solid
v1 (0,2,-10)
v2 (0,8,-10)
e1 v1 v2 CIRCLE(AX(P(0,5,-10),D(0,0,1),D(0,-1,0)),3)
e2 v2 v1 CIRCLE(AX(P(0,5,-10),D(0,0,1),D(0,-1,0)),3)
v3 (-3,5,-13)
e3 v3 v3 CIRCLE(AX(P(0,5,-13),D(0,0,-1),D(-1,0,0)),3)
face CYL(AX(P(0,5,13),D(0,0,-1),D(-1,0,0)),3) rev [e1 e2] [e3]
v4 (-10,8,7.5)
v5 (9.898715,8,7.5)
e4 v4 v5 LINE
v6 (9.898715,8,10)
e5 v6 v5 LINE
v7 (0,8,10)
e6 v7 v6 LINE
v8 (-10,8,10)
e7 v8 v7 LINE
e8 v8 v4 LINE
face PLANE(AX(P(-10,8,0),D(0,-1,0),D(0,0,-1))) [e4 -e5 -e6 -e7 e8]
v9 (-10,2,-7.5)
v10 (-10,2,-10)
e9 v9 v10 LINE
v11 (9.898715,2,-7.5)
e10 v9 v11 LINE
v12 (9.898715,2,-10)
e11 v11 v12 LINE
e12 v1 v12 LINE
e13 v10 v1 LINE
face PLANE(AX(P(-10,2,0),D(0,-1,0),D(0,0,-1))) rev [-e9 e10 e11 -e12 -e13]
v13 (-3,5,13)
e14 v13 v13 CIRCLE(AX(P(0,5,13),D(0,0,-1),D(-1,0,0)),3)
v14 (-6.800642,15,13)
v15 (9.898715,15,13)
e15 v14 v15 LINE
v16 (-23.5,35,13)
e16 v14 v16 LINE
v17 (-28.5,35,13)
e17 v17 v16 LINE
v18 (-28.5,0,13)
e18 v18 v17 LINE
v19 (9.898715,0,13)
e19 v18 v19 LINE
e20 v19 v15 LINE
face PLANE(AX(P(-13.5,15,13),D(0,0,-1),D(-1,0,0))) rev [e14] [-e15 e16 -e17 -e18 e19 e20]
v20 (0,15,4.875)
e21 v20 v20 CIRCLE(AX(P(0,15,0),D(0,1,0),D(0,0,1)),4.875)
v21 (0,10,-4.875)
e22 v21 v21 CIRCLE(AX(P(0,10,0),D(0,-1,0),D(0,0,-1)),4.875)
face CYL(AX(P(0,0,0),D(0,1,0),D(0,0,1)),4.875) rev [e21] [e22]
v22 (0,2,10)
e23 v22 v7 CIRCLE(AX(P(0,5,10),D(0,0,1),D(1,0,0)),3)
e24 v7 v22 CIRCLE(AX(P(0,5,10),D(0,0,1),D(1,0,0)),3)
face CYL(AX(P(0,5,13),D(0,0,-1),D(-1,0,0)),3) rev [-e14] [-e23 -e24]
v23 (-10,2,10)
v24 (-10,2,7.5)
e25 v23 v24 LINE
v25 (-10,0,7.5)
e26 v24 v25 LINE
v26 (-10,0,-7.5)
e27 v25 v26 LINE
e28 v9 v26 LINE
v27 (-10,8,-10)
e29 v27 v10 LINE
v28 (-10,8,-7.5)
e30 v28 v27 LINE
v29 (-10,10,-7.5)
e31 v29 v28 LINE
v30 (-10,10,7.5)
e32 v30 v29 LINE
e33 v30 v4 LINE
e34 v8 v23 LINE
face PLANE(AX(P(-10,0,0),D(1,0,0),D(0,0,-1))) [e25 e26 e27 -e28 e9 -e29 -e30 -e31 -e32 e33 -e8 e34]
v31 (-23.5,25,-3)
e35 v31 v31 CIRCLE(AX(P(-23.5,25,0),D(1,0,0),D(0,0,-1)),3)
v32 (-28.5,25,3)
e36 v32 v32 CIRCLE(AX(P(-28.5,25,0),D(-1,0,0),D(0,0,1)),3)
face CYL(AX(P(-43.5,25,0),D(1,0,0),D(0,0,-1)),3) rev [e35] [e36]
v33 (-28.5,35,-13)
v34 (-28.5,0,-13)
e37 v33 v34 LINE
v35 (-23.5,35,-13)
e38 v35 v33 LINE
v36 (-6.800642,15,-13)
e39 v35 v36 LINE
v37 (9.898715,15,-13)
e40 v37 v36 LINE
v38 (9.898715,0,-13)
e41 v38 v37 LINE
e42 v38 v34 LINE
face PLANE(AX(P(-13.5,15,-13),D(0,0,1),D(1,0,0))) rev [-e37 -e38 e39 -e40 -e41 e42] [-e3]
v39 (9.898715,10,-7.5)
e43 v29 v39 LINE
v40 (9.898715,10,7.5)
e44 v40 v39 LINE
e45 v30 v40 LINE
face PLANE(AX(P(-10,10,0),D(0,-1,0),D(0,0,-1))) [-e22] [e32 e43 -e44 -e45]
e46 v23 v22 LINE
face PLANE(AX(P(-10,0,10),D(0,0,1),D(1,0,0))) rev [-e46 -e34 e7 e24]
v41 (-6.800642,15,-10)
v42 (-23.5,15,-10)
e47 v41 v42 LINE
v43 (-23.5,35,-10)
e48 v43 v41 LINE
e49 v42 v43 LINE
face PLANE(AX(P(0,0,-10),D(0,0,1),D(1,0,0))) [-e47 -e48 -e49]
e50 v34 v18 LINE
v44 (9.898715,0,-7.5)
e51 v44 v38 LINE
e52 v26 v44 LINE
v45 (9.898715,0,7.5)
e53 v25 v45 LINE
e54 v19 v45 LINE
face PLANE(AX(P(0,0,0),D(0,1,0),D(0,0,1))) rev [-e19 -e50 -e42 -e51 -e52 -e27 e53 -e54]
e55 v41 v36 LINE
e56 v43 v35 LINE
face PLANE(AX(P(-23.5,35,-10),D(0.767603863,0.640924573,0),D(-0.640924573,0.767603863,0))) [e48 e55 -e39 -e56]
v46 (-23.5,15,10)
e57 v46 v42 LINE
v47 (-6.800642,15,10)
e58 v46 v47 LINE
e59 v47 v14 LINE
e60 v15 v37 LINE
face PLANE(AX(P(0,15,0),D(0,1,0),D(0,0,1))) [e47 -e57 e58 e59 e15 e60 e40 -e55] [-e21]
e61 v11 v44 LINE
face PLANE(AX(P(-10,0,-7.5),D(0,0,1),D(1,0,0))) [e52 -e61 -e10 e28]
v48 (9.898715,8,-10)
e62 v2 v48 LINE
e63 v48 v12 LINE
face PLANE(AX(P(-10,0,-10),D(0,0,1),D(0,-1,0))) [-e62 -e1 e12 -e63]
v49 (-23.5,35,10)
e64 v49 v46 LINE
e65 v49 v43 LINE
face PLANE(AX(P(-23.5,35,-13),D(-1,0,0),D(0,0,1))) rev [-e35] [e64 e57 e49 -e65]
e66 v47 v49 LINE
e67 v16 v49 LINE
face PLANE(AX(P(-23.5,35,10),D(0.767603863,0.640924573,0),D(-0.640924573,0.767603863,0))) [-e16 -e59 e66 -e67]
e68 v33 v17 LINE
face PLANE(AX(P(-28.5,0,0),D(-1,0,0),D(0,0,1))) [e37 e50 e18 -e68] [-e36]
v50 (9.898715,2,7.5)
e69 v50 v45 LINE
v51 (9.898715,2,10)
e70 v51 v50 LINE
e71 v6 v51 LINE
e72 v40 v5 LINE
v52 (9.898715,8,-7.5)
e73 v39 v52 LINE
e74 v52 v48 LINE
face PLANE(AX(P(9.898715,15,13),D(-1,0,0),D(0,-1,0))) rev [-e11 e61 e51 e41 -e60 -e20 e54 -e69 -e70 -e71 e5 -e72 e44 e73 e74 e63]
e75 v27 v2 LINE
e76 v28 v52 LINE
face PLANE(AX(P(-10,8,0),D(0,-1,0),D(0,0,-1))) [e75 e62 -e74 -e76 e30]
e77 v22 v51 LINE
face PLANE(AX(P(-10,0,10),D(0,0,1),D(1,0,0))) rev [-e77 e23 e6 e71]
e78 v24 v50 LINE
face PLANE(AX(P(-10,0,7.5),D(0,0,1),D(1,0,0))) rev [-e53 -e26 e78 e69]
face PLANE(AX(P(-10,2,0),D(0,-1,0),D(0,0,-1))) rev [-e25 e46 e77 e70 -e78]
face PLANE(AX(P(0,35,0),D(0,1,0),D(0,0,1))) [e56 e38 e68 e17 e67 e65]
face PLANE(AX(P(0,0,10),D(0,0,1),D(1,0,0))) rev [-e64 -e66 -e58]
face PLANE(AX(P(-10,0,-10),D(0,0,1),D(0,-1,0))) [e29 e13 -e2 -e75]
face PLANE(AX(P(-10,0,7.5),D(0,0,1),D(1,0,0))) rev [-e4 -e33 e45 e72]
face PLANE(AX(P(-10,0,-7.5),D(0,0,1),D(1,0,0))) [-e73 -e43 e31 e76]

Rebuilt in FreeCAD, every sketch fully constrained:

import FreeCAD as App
import Part
import Sketcher


def add_polygon(sketch, points):
    """Adds a closed chain of lines whose ends are joined by coincident constraints."""
    first, n = sketch.GeometryCount, len(points)
    for a, b in zip(points, points[1:] + points[:1]):
        sketch.addGeometry(Part.LineSegment(App.Vector(*a, 0), App.Vector(*b, 0)), False)
    for i in range(n):
        sketch.addConstraint(Sketcher.Constraint("Coincident", first + i, 2, first + (i + 1) % n, 1))

doc = App.newDocument("Part")
body = doc.addObject("PartDesign::Body", "Body")

sketch1 = body.newObject("Sketcher::SketchObject", "Sketch")
sketch1.AttachmentSupport = (doc.getObject("XZ_Plane"), [""])
sketch1.MapMode = "FlatFace"
add_polygon(sketch1, [(-14, -13), (-14, 13), (14, 13), (14, -13)])
sketch1.addConstraint([
    Sketcher.Constraint("Vertical", 0),
    Sketcher.Constraint("Horizontal", 1),
    Sketcher.Constraint("Vertical", 2),
    Sketcher.Constraint("Horizontal", 3),
    Sketcher.Constraint("Symmetric", 0, 2, 2, 2, -1, 1),
    Sketcher.Constraint("DistanceX", 1, 1, 1, 2, 27.0),
    Sketcher.Constraint("DistanceY", 0, 1, 0, 2, 26.0),
])
pad1 = body.newObject("PartDesign::Pad", "Pad")
pad1.Profile = sketch1
pad1.Length = 15
pad1.Reversed = True

sketch2 = body.newObject("Sketcher::SketchObject", "Sketch001")
sketch2.AttachmentSupport = (doc.getObject("YZ_Plane"), [""])
sketch2.MapMode = "FlatFace"
sketch2.AttachmentOffset = App.Placement(App.Vector(0, 0, 13.5), App.Rotation())
add_polygon(sketch2, [(2, 10), (2, 7.5), (0, 7.5), (0, -7.5), (2, -7.5), (2, -10), (8, -10), (8, -7.5), (10, -7.5), (10, 7.5), (8, 7.5), (8, 10)])
sketch2.addConstraint([
    Sketcher.Constraint("Vertical", 0),
    Sketcher.Constraint("Horizontal", 1),
    Sketcher.Constraint("Vertical", 2),
    Sketcher.Constraint("Horizontal", 3),
    Sketcher.Constraint("Vertical", 4),
    Sketcher.Constraint("Horizontal", 5),
    Sketcher.Constraint("Vertical", 6),
    Sketcher.Constraint("Horizontal", 7),
    Sketcher.Constraint("Vertical", 8),
    Sketcher.Constraint("Horizontal", 9),
    Sketcher.Constraint("Vertical", 10),
    Sketcher.Constraint("Horizontal", 11),
    Sketcher.Constraint("Symmetric", 1, 2, 2, 2, -1, 1),
    Sketcher.Constraint("Symmetric", 6, 2, 9, 2, -1),
    Sketcher.Constraint("Symmetric", 4, 2, 11, 2, -1),
    Sketcher.Constraint("Horizontal", 3, 2, 6, 2),
    Sketcher.Constraint("Equal", 3, 7),
    Sketcher.Constraint("DistanceX", 1, 2, 1, 1, 2.0),
    Sketcher.Constraint("DistanceX", 5, 1, 5, 2, 6.0),
    Sketcher.Constraint("DistanceY", 2, 2, 2, 1, 15.0),
    Sketcher.Constraint("DistanceY", 0, 2, 0, 1, 2.5),
])
pocket1 = body.newObject("PartDesign::Pocket", "Pocket")
pocket1.Profile = sketch2
pocket1.Length = 23.5

sketch3 = body.newObject("Sketcher::SketchObject", "Sketch002")
sketch3.AttachmentSupport = (doc.getObject("XY_Plane"), [""])
sketch3.MapMode = "FlatFace"
sketch3.AttachmentOffset = App.Placement(App.Vector(0, 0, -13), App.Rotation())
add_polygon(sketch3, [(13.5, 15), (13.5, 0), (9.9, 0), (9.9, 15)])
sketch3.addConstraint([
    Sketcher.Constraint("Vertical", 0),
    Sketcher.Constraint("Horizontal", 1),
    Sketcher.Constraint("Vertical", 2),
    Sketcher.Constraint("Horizontal", 3),
    Sketcher.Constraint("PointOnObject", 0, 2, -1),
    Sketcher.Constraint("DistanceY", 0, 2, 0, 1, 15.0),
    Sketcher.Constraint("DistanceX", -1, 1, 0, 2, 13.5),
    Sketcher.Constraint("DistanceX", 1, 2, 1, 1, 3.601285),
])
pocket2 = body.newObject("PartDesign::Pocket", "Pocket001")
pocket2.Profile = sketch3
pocket2.Type = "ThroughAll"
pocket2.Reversed = True

sketch4 = body.newObject("Sketcher::SketchObject", "Sketch003")
sketch4.AttachmentSupport = (doc.getObject("XY_Plane"), [""])
sketch4.MapMode = "FlatFace"
sketch4.AttachmentOffset = App.Placement(App.Vector(0, 0, -13), App.Rotation())
sketch4.addGeometry(Part.Circle(App.Vector(0, 5, 0), App.Vector(0, 0, 1), 3), False)
sketch4.addConstraint([
    Sketcher.Constraint("PointOnObject", 0, 3, -2),
    Sketcher.Constraint("Diameter", 0, 6.0),
    Sketcher.Constraint("DistanceY", -1, 1, 0, 3, 5.0),
])
pocket3 = body.newObject("PartDesign::Pocket", "Pocket002")
pocket3.Profile = sketch4
pocket3.Type = "ThroughAll"
pocket3.Reversed = True

sketch5 = body.newObject("Sketcher::SketchObject", "Sketch004")
sketch5.AttachmentSupport = (doc.getObject("XZ_Plane"), [""])
sketch5.MapMode = "FlatFace"
sketch5.AttachmentOffset = App.Placement(App.Vector(0, 0, -15), App.Rotation())
sketch5.addGeometry(Part.Circle(App.Vector(0, 0, 0), App.Vector(0, 0, 1), 4.9), False)
sketch5.addConstraint([
    Sketcher.Constraint("Coincident", 0, 3, -1, 1),
    Sketcher.Constraint("Diameter", 0, 9.75),
])
pocket4 = body.newObject("PartDesign::Pocket", "Pocket003")
pocket4.Profile = sketch5
pocket4.Type = "ThroughAll"
pocket4.Reversed = True

sketch6 = body.newObject("Sketcher::SketchObject", "Sketch005")
sketch6.AttachmentSupport = (doc.getObject("YZ_Plane"), [""])
sketch6.MapMode = "FlatFace"
sketch6.AttachmentOffset = App.Placement(App.Vector(0, 0, -13.5), App.Rotation())
add_polygon(sketch6, [(15, -13), (0, -13), (0, 13), (15, 13)])
sketch6.addConstraint([
    Sketcher.Constraint("Horizontal", 0),
    Sketcher.Constraint("Vertical", 1),
    Sketcher.Constraint("Horizontal", 2),
    Sketcher.Constraint("Vertical", 3),
    Sketcher.Constraint("Symmetric", 0, 2, 1, 2, -1, 1),
    Sketcher.Constraint("DistanceX", 0, 2, 0, 1, 15.0),
    Sketcher.Constraint("DistanceY", 1, 1, 1, 2, 26.0),
])
pad2 = body.newObject("PartDesign::Pad", "Pad001")
pad2.Profile = sketch6
pad2.Length = 15
pad2.Reversed = True

sketch7 = body.newObject("Sketcher::SketchObject", "Sketch006")
sketch7.AttachmentSupport = (doc.getObject("XZ_Plane"), [""])
sketch7.MapMode = "FlatFace"
sketch7.AttachmentOffset = App.Placement(App.Vector(0, 0, -15), App.Rotation())
add_polygon(sketch7, [(-28, -13), (-28, 13), (-24, 13), (-24, -13)])
sketch7.addConstraint([
    Sketcher.Constraint("Vertical", 0),
    Sketcher.Constraint("Horizontal", 1),
    Sketcher.Constraint("Vertical", 2),
    Sketcher.Constraint("Horizontal", 3),
    Sketcher.Constraint("DistanceX", 1, 1, 1, 2, 5.0),
    Sketcher.Constraint("DistanceY", 0, 1, 0, 2, 26.0),
    Sketcher.Constraint("DistanceY", -1, 1, 0, 2, 13.0),
    Sketcher.Constraint("DistanceX", 0, 2, -1, 1, 28.5),
])
pad3 = body.newObject("PartDesign::Pad", "Pad002")
pad3.Profile = sketch7
pad3.Length = 20
pad3.Reversed = True

sketch8 = body.newObject("Sketcher::SketchObject", "Sketch007")
sketch8.AttachmentSupport = (doc.getObject("YZ_Plane"), [""])
sketch8.MapMode = "FlatFace"
sketch8.AttachmentOffset = App.Placement(App.Vector(0, 0, -23.5), App.Rotation())
sketch8.addGeometry(Part.Circle(App.Vector(25, 0, 0), App.Vector(0, 0, 1), 3), False)
sketch8.addConstraint([
    Sketcher.Constraint("PointOnObject", 0, 3, -1),
    Sketcher.Constraint("Diameter", 0, 6.0),
    Sketcher.Constraint("DistanceX", -1, 1, 0, 3, 25.0),
])
pocket5 = body.newObject("PartDesign::Pocket", "Pocket004")
pocket5.Profile = sketch8
pocket5.Length = 20

sketch9 = body.newObject("Sketcher::SketchObject", "Sketch008")
sketch9.AttachmentSupport = (doc.getObject("XY_Plane"), [""])
sketch9.MapMode = "FlatFace"
sketch9.AttachmentOffset = App.Placement(App.Vector(0, 0, -13), App.Rotation())
add_polygon(sketch9, [(-24, 35), (-7, 15), (-24, 15)])
sketch9.addConstraint([
    Sketcher.Constraint("Horizontal", 1),
    Sketcher.Constraint("Vertical", 2),
    Sketcher.Constraint("DistanceY", 2, 1, 2, 2, 20.0),
    Sketcher.Constraint("DistanceY", -1, 1, 0, 2, 15.0),
    Sketcher.Constraint("DistanceX", 1, 2, -1, 1, 23.5),
    Sketcher.Constraint("DistanceX", 1, 2, 1, 1, 16.699358),
])
pad4 = body.newObject("PartDesign::Pad", "Pad003")
pad4.Profile = sketch9
pad4.Length = 3

sketch10 = body.newObject("Sketcher::SketchObject", "Sketch009")
sketch10.AttachmentSupport = (doc.getObject("XY_Plane"), [""])
sketch10.MapMode = "FlatFace"
sketch10.AttachmentOffset = App.Placement(App.Vector(0, 0, 13), App.Rotation())
add_polygon(sketch10, [(-7, 15), (-24, 35), (-24, 15)])
sketch10.addConstraint([
    Sketcher.Constraint("Vertical", 1),
    Sketcher.Constraint("Horizontal", 2),
    Sketcher.Constraint("DistanceY", 1, 2, 1, 1, 20.0),
    Sketcher.Constraint("DistanceY", -1, 1, 0, 2, 35.0),
    Sketcher.Constraint("DistanceX", 0, 2, -1, 1, 23.5),
    Sketcher.Constraint("DistanceX", 2, 1, 2, 2, 16.699358),
])
pad5 = body.newObject("PartDesign::Pad", "Pad004")
pad5.Profile = sketch10
pad5.Length = 3
pad5.Reversed = True

doc.recompute()
